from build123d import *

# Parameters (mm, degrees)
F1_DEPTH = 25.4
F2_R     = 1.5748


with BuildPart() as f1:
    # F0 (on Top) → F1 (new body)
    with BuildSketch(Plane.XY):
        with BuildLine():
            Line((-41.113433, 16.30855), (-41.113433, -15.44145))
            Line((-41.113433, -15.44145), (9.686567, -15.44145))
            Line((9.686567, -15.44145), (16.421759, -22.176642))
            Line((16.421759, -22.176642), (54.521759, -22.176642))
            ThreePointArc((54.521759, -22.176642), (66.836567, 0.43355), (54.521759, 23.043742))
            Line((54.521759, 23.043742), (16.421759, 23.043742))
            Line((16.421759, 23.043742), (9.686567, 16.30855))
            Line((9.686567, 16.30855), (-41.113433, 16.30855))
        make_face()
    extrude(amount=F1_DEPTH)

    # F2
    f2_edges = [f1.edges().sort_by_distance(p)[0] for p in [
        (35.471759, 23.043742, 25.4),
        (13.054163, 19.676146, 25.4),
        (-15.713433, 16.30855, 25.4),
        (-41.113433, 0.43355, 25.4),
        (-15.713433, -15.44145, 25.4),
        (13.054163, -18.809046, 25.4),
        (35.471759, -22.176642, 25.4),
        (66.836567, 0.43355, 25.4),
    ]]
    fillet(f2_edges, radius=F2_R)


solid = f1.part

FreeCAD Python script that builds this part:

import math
import FreeCAD as App
import Part
import Sketcher
Q = App.Units.Quantity


def edges_at(feature, points):
    """Names of the edges that pass closest to the given points."""
    edges = feature.Shape.Edges
    near = lambda p: min(range(len(edges)), key=lambda i: edges[i].distToShape(Part.Vertex(*p))[0])
    return sorted({f"Edge{near(p) + 1}" for p in points})

doc = App.newDocument("Part")
body = doc.addObject("PartDesign::Body", "Body")

# Sketch on XY plane
sketch1 = body.newObject("Sketcher::SketchObject", "Sketch")
sketch1.AttachmentSupport = (doc.getObject("XY_Plane"), [""])
sketch1.MapMode = "FlatFace"
sketch1.addGeometry(Part.LineSegment(App.Vector(-41, 16, 0), App.Vector(-41, -15, 0)), False)
sketch1.addGeometry(Part.LineSegment(App.Vector(-41, -15, 0), App.Vector(10, -15, 0)), False)
sketch1.addGeometry(Part.LineSegment(App.Vector(10, -15, 0), App.Vector(16, -22, 0)), False)
sketch1.addGeometry(Part.LineSegment(App.Vector(16, -22, 0), App.Vector(55, -22, 0)), False)
sketch1.addGeometry(Part.ArcOfCircle(Part.Circle(App.Vector(40, 0, 0), App.Vector(0, 0, 1), 27), math.radians(-57), math.radians(57)), False)
sketch1.addGeometry(Part.LineSegment(App.Vector(55, 23, 0), App.Vector(16, 23, 0)), False)
sketch1.addGeometry(Part.LineSegment(App.Vector(16, 23, 0), App.Vector(10, 16, 0)), False)
sketch1.addGeometry(Part.LineSegment(App.Vector(10, 16, 0), App.Vector(-41, 16, 0)), False)
sketch1.addConstraint(Sketcher.Constraint("Coincident", 0, 2, 1, 1))
sketch1.addConstraint(Sketcher.Constraint("Coincident", 1, 2, 2, 1))
sketch1.addConstraint(Sketcher.Constraint("Coincident", 2, 2, 3, 1))
sketch1.addConstraint(Sketcher.Constraint("Coincident", 3, 2, 4, 1))
sketch1.addConstraint(Sketcher.Constraint("Coincident", 4, 2, 5, 1))
sketch1.addConstraint(Sketcher.Constraint("Coincident", 5, 2, 6, 1))
sketch1.addConstraint(Sketcher.Constraint("Coincident", 6, 2, 7, 1))
sketch1.addConstraint(Sketcher.Constraint("Coincident", 7, 2, 0, 1))
sketch1.addConstraint(Sketcher.Constraint("Vertical", 0))
sketch1.addConstraint(Sketcher.Constraint("Horizontal", 1))
sketch1.addConstraint(Sketcher.Constraint("Horizontal", 3))
sketch1.addConstraint(Sketcher.Constraint("Horizontal", 5))
sketch1.addConstraint(Sketcher.Constraint("Horizontal", 7))
sketch1.addConstraint(Sketcher.Constraint("Perpendicular", 2, 6))
sketch1.addConstraint(Sketcher.Constraint("Vertical", 3, 2, 4, 2))
sketch1.addConstraint(Sketcher.Constraint("Vertical", 2, 2, 5, 2))
sketch1.addConstraint(Sketcher.Constraint("Vertical", 1, 2, 6, 2))
sketch1.addConstraint(Sketcher.Constraint("Equal", 2, 6))
sketch1.addConstraint(Sketcher.Constraint("DistanceX", 1, 1, 1, 2, Q("2 in")))
sketch1.addConstraint(Sketcher.Constraint("DistanceX", 3, 1, 3, 2, Q("1.5 in")))
sketch1.addConstraint(Sketcher.Constraint("DistanceY", 0, 2, 0, 1, Q("1.25 in")))
sketch1.addConstraint(Sketcher.Constraint("Distance", 2, Q("0.375 in")))
sketch1.addConstraint(Sketcher.Constraint("Radius", 4, Q("26.913748 mm")))
sketch1.addConstraint(Sketcher.Constraint("DistanceX", -1, 1, 4, 3, Q("39.922819 mm")))
sketch1.addConstraint(Sketcher.Constraint("DistanceY", -1, 1, 4, 3, Q("0.43355 mm")))
pad1 = body.newObject("PartDesign::Pad", "Pad")
pad1.Profile = sketch1
pad1.Length = Q("1 in")
doc.recompute()

fillet = body.newObject("PartDesign::Fillet", "Fillet")
fillet.Base = (pad1, edges_at(pad1, [
    (35.472, 23.044, 25.4),
    (13.054, 19.676, 25.4),
    (-15.713, 16.309, 25.4),
    (-41.113, 0.434, 25.4),
    (-15.713, -15.441, 25.4),
    (13.054, -18.809, 25.4),
    (35.472, -22.177, 25.4),
    (66.837, 0.434, 25.4),
]))
fillet.Radius = Q("0.062 in")

doc.recompute()
